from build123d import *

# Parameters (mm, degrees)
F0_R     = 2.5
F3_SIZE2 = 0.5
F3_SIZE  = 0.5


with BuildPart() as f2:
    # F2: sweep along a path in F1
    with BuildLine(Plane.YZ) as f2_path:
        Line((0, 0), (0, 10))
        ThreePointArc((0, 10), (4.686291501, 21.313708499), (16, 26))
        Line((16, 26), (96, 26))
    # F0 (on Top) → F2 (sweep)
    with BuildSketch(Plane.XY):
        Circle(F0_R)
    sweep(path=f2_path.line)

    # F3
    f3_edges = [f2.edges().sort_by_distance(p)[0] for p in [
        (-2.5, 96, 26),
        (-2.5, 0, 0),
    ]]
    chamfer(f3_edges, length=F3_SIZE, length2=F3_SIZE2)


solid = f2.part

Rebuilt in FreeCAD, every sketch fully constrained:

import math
import FreeCAD as App
import Part
import Sketcher

V = App.Vector
Q = App.Units.Quantity


def edges_at(feature, points):
    """Names of the edges that pass closest to the given points."""
    edges = feature.Shape.Edges
    near = lambda p: min(range(len(edges)), key=lambda i: edges[i].distToShape(Part.Vertex(*p))[0])
    return sorted({f"Edge{near(p) + 1}" for p in points})

doc = App.newDocument("Part")
params = doc.addObject("Spreadsheet::Sheet", "Params")
for row, (alias, value) in enumerate([
    ("sketch1_diameter", "5 mm"),
    ("sketch2_radius", "16 mm"),
    ("sketch2_width", "80 mm"),
    ("sketch2_height", "10 mm"),
    ("chamfer_size", "0.5 mm"),
    ("chamfer_size2", "0.5 mm"),
], start=1):
    params.set(f"A{row}", alias)
    params.set(f"B{row}", "=" + value)
    params.setAlias(f"B{row}", alias)

body = doc.addObject("PartDesign::Body", "Body")

# Sketch on XY plane
sketch1 = body.newObject("Sketcher::SketchObject", "Sketch")
sketch1.AttachmentSupport = (doc.getObject("XY_Plane"), [""])
sketch1.MapMode = "FlatFace"
sketch1.addGeometry(Part.Circle(V(0, 0, 0), V(0, 0, 1), 2.5), False)
sketch1.addConstraint([
    Sketcher.Constraint("Coincident", 0, 3, -1, 1),
    Sketcher.Constraint("Diameter", 0, Q("5 mm")),
])
sketch1.setExpression("Constraints[1]", "Params.sketch1_diameter")

# Sketch on YZ plane
sketch2 = body.newObject("Sketcher::SketchObject", "Sketch001")
sketch2.AttachmentSupport = (doc.getObject("YZ_Plane"), [""])
sketch2.MapMode = "FlatFace"
sketch2.addGeometry([
    Part.LineSegment(V(0, 0, 0), V(0, 10, 0)),
    Part.ArcOfCircle(Part.Circle(V(16, 10, 0), V(0, 0, 1), 16), math.radians(90), math.radians(180)),
    Part.LineSegment(V(16, 26, 0), V(96, 26, 0)),
], False)
sketch2.addConstraint([
    Sketcher.Constraint("Tangent", 0, 2, 1, 2),
    Sketcher.Constraint("Tangent", 1, 1, 2, 1),
    Sketcher.Constraint("Vertical", 0),
    Sketcher.Constraint("Horizontal", 2),
    Sketcher.Constraint("Coincident", 0, 1, -1, 1),
    Sketcher.Constraint("Radius", 1, Q("16 mm")),
    Sketcher.Constraint("DistanceX", 2, 1, 2, 2, Q("80 mm")),
    Sketcher.Constraint("DistanceY", 0, 1, 0, 2, Q("10 mm")),
])
sketch2.setExpression("Constraints[5]", "Params.sketch2_radius")
sketch2.setExpression("Constraints[6]", "Params.sketch2_width")
sketch2.setExpression("Constraints[7]", "Params.sketch2_height")
doc.recompute()

additivepipe = body.newObject("PartDesign::AdditivePipe", "AdditivePipe")
additivepipe.Profile = sketch1
additivepipe.Spine = (sketch2, ["Edge1", "Edge2", "Edge3"])
doc.recompute()

chamfer = body.newObject("PartDesign::Chamfer", "Chamfer")
chamfer.Base = (additivepipe, edges_at(additivepipe, [(-2.5, 96, 26), (-2.5, 0, 0)]))
chamfer.ChamferType = "Two distances"
chamfer.setExpression("Size", "Params.chamfer_size")
chamfer.setExpression("Size2", "Params.chamfer_size2")

doc.recompute()
